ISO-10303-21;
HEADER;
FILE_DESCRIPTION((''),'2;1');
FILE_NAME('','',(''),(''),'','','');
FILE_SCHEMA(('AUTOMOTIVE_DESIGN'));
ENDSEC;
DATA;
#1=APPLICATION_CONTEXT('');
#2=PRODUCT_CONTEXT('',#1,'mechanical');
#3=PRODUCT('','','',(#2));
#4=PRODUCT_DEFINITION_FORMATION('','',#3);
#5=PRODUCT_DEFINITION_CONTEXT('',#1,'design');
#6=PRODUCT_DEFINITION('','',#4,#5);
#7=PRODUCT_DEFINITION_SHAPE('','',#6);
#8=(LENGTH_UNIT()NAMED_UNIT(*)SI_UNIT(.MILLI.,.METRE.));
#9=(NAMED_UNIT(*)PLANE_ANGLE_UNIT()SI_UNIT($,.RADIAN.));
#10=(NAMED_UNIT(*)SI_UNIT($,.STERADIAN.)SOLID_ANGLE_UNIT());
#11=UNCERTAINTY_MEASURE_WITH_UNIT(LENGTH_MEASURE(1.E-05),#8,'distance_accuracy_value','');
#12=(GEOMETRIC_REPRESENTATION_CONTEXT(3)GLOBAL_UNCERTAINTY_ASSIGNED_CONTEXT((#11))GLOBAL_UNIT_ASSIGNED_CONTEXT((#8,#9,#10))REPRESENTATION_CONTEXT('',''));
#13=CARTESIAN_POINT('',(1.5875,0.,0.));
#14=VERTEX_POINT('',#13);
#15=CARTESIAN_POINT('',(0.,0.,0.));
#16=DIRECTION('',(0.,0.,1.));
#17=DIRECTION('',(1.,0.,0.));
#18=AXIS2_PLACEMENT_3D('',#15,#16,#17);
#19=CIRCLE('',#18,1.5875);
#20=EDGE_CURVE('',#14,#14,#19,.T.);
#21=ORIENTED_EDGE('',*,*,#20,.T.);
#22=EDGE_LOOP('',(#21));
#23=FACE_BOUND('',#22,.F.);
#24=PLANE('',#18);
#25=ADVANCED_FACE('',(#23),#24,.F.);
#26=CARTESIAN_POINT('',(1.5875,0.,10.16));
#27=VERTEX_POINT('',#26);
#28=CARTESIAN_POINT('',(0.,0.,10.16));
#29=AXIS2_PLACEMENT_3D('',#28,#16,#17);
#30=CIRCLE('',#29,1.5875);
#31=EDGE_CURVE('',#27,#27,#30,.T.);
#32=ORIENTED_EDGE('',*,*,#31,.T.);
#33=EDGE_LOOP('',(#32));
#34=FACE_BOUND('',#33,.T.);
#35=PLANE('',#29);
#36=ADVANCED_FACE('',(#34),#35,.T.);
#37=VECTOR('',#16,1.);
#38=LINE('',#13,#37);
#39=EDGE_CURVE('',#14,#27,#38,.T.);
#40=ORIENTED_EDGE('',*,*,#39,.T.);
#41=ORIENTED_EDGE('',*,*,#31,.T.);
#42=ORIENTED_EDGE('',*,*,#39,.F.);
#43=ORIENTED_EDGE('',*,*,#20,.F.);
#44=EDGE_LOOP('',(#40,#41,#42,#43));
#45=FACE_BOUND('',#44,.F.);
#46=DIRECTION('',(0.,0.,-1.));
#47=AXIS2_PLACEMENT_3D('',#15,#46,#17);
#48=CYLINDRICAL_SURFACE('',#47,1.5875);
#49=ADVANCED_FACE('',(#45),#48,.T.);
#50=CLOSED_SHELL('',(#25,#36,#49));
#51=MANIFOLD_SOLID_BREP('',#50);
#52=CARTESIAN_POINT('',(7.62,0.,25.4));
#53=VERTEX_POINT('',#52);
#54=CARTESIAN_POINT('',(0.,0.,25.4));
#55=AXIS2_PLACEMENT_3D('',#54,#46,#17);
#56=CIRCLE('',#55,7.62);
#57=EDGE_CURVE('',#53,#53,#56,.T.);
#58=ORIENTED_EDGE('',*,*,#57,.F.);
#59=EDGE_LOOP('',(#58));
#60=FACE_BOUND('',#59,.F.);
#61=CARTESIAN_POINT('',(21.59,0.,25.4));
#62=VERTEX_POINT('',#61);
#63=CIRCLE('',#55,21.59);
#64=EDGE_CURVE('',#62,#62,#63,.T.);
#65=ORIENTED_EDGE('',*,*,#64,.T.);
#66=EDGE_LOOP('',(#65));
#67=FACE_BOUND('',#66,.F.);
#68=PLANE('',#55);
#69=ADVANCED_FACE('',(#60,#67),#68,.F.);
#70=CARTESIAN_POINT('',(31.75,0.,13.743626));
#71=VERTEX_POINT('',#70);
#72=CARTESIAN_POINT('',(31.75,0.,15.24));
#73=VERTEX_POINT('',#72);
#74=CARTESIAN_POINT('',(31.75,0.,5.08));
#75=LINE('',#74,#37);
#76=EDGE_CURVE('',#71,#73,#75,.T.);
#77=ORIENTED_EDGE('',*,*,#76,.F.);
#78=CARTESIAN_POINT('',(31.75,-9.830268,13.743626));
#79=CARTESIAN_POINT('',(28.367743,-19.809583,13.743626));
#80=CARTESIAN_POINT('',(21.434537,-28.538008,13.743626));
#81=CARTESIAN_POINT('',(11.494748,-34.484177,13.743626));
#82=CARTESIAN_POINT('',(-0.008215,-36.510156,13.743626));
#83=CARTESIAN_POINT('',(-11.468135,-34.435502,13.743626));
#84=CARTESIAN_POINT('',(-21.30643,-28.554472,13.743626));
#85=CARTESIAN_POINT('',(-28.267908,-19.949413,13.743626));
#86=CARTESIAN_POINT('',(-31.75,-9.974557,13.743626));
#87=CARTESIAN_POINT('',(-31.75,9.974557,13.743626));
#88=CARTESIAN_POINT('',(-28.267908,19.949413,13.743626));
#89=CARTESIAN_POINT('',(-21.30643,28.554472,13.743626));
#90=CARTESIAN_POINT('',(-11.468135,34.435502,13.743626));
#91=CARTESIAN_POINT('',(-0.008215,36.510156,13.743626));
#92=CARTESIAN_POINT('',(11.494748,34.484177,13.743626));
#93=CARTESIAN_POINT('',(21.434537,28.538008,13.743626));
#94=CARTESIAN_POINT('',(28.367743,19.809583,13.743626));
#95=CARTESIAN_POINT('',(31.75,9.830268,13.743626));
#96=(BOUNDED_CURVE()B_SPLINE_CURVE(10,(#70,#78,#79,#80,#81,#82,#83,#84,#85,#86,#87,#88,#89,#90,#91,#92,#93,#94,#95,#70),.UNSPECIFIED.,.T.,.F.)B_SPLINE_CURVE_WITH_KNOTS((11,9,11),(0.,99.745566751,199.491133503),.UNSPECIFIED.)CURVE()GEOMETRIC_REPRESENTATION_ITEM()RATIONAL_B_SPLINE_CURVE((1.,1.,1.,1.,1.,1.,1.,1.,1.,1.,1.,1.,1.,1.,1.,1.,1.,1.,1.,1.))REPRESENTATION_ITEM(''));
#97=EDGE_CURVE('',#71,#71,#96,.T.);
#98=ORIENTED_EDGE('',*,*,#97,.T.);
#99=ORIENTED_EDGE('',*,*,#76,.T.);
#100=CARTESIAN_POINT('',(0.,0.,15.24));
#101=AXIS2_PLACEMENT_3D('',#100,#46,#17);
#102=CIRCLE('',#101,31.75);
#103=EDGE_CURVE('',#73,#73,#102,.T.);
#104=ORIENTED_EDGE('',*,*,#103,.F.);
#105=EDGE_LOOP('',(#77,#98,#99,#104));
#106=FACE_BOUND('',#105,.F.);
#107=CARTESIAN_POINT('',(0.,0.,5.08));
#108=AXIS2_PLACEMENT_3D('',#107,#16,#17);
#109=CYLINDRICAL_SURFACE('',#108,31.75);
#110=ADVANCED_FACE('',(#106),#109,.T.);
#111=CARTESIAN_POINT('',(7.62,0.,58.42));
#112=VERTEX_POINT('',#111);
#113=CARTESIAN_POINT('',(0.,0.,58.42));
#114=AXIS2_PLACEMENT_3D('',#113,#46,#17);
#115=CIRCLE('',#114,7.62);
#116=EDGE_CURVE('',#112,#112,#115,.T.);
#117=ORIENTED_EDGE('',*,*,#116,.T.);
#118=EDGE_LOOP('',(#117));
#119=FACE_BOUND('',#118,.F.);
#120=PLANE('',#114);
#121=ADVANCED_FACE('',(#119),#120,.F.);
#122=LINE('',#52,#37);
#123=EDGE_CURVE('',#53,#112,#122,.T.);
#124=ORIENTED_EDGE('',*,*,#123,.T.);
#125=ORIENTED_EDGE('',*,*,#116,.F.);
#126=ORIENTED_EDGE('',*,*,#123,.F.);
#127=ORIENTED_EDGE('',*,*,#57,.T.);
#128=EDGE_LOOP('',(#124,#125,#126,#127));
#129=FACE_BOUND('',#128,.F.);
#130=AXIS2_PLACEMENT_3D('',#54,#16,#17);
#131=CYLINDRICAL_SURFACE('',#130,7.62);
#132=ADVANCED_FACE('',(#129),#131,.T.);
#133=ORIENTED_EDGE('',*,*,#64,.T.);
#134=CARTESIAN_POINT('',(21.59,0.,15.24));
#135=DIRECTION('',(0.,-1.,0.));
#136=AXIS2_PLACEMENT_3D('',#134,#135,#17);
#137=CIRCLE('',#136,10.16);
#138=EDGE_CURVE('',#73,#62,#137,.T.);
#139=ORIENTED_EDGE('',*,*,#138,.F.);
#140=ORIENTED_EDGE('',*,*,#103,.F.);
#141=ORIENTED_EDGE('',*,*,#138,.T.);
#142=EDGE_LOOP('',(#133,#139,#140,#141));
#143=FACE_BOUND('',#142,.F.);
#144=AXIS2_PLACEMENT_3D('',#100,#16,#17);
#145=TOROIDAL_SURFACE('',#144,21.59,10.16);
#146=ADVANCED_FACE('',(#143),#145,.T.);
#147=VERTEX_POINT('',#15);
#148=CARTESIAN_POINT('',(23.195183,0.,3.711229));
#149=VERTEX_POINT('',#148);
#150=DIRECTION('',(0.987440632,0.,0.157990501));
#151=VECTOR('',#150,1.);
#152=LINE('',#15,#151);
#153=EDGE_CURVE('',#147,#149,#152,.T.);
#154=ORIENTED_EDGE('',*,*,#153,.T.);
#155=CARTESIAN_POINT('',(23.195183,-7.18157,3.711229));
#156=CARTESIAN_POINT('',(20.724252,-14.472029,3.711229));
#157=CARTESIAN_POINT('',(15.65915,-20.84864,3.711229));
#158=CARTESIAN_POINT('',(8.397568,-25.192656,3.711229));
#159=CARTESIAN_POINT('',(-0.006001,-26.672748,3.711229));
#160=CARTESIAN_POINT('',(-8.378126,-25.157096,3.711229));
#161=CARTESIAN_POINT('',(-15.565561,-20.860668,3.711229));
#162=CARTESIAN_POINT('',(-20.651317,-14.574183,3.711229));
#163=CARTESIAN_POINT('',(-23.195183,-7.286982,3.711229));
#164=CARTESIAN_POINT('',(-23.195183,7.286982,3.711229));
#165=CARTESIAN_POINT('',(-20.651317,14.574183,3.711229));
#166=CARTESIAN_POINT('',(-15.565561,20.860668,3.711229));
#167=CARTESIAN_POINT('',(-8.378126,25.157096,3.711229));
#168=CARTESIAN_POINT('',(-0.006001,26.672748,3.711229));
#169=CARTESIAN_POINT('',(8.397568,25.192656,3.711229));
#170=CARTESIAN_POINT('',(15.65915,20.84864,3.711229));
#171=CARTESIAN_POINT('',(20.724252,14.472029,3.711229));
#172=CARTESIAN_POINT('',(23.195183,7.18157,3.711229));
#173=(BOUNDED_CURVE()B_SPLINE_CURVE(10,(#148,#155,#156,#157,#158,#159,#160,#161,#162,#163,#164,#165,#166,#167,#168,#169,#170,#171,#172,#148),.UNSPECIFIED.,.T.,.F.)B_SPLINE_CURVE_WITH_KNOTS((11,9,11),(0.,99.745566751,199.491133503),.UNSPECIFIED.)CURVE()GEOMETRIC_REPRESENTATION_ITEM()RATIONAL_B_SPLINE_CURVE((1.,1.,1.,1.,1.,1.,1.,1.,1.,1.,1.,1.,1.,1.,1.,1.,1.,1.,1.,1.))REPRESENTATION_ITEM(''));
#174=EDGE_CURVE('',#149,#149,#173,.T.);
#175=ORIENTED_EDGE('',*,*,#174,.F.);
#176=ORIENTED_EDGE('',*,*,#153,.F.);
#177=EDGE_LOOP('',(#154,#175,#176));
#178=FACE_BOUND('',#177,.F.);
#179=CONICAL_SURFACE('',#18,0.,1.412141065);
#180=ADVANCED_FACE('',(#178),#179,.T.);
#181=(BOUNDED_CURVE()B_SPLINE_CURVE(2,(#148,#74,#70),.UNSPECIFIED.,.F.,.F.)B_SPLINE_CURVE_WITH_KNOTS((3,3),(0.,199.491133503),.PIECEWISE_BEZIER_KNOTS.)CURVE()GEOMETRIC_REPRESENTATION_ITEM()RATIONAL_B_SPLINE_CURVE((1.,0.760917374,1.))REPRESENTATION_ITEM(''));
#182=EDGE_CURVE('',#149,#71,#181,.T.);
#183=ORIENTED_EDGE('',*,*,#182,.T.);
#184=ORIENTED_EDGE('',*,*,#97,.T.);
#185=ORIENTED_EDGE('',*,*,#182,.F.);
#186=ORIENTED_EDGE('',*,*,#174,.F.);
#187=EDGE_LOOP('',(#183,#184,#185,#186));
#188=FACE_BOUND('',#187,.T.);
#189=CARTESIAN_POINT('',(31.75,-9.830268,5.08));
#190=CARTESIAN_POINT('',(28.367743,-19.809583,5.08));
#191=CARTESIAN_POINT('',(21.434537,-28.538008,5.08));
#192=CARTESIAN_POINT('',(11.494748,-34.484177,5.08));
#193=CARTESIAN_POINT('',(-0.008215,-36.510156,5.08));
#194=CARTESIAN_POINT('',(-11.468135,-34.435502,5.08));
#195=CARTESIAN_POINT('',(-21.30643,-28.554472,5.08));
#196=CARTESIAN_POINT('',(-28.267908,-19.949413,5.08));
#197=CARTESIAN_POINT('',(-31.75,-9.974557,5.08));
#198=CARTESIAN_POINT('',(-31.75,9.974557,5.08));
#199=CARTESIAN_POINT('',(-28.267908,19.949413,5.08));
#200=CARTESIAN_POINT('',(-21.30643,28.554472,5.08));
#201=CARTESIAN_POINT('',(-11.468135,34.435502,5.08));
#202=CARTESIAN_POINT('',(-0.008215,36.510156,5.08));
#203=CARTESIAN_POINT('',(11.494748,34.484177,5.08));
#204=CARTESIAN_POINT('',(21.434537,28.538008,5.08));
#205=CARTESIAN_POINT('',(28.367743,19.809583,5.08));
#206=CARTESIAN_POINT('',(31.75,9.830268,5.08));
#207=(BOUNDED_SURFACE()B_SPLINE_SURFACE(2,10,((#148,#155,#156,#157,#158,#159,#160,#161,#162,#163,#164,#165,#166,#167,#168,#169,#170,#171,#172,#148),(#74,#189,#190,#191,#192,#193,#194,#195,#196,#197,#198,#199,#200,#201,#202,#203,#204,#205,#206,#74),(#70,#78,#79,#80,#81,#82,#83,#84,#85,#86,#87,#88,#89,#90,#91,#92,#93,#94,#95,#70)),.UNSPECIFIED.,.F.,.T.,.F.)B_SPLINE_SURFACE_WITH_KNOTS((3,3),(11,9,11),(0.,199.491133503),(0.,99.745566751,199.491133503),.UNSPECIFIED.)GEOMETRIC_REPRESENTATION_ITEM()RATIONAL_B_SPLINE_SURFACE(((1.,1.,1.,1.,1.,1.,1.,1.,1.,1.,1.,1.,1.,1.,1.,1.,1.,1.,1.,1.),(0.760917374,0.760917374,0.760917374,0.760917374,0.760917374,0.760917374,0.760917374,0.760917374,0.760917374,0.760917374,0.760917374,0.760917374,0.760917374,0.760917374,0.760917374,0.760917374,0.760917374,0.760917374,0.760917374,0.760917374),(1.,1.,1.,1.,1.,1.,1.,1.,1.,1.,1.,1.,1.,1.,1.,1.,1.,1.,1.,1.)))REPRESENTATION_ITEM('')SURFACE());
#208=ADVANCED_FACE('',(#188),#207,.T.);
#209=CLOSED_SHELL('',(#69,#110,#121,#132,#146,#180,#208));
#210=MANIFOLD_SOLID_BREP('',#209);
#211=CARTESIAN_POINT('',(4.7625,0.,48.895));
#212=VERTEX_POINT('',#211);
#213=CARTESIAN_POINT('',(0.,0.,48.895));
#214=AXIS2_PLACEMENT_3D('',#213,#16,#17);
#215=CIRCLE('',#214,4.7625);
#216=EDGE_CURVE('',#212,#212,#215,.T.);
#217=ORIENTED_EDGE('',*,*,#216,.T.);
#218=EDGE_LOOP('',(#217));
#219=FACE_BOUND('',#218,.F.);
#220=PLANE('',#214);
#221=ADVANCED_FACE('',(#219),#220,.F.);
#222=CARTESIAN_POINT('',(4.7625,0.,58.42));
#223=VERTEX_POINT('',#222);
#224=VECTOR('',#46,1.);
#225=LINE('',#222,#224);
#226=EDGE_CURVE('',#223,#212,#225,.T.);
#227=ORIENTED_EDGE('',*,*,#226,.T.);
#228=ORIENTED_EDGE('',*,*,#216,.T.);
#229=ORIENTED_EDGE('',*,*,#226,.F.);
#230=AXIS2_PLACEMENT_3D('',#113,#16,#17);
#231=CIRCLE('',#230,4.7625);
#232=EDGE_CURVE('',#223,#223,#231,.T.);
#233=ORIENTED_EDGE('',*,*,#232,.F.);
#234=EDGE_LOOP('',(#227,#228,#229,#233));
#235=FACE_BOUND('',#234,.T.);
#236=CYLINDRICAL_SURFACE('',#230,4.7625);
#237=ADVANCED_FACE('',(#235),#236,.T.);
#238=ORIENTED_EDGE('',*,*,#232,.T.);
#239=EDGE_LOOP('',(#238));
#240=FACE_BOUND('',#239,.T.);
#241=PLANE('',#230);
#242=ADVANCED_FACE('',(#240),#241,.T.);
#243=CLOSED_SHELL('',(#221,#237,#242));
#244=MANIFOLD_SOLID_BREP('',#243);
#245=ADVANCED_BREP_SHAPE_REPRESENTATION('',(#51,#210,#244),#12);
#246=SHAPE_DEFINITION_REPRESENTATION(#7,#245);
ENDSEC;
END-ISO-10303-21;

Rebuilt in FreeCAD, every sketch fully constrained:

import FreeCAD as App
import Part
import Sketcher
from FreeCAD import Vector
Q = App.Units.Quantity


def edges_at(feature, points):
    """Names of the edges that pass closest to the given points."""
    edges = feature.Shape.Edges
    near = lambda p: min(range(len(edges)), key=lambda i: edges[i].distToShape(Part.Vertex(*p))[0])
    return sorted({f"Edge{near(p) + 1}" for p in points})

doc = App.newDocument("Part")
body = doc.addObject("PartDesign::Body", "Body")

# Sketch on XZ plane
sketch1 = body.newObject("Sketcher::SketchObject", "Sketch")
sketch1.AttachmentSupport = (doc.getObject("XZ_Plane"), [""])
sketch1.MapMode = "FlatFace"
sketch1.addGeometry([
    Part.LineSegment(Vector(0, 58, 0), Vector(0, 0, 0)),  # 0
    Part.LineSegment(Vector(0, 0, 0), Vector(32, 5, 0)),  # 1
    Part.LineSegment(Vector(32, 5, 0), Vector(32, 25, 0)),  # 2
    Part.LineSegment(Vector(32, 25, 0), Vector(8, 25, 0)),  # 3
    Part.LineSegment(Vector(8, 25, 0), Vector(8, 58, 0)),  # 4
    Part.LineSegment(Vector(8, 58, 0), Vector(0, 58, 0)),  # 5
], False)
sketch1.addConstraint([
    Sketcher.Constraint("Coincident", 0, 2, 1, 1),
    Sketcher.Constraint("Coincident", 1, 2, 2, 1),
    Sketcher.Constraint("Coincident", 2, 2, 3, 1),
    Sketcher.Constraint("Coincident", 3, 2, 4, 1),
    Sketcher.Constraint("Coincident", 4, 2, 5, 1),
    Sketcher.Constraint("Coincident", 5, 2, 0, 1),
    Sketcher.Constraint("Vertical", 0),
    Sketcher.Constraint("Vertical", 2),
    Sketcher.Constraint("Horizontal", 3),
    Sketcher.Constraint("Vertical", 4),
    Sketcher.Constraint("Horizontal", 5),
    Sketcher.Constraint("Coincident", 0, 2, -1, 1),
    Sketcher.Constraint("DistanceX", 5, 2, 5, 1, Q("0.3 in")),
    Sketcher.Constraint("DistanceY", 0, 2, 0, 1, Q("2.3 in")),
    Sketcher.Constraint("DistanceY", 2, 1, 2, 2, Q("0.8 in")),
    Sketcher.Constraint("DistanceY", 4, 1, 4, 2, Q("1.3 in")),
    Sketcher.Constraint("DistanceX", 3, 2, 3, 1, Q("0.95 in")),
])
revolution = body.newObject("PartDesign::Revolution", "Revolution")
revolution.Profile = sketch1
revolution.ReferenceAxis = (sketch1, ["V_Axis"])
revolution.Angle = 360
doc.recompute()

fillet = body.newObject("PartDesign::Fillet", "Fillet")
fillet.Base = (revolution, edges_at(revolution, [(-31.75, 0, 5.08), (-31.75, 0, 25.4), (31.75, 0, 15.24)]))
fillet.Radius = Q("0.4 in")
body2 = doc.addObject("PartDesign::Body", "Body001")

# Sketch on XY plane
sketch2 = body2.newObject("Sketcher::SketchObject", "Sketch001")
sketch2.AttachmentSupport = (doc.getObject("XY_Plane001"), [""])
sketch2.MapMode = "FlatFace"
sketch2.addGeometry(Part.Circle(Vector(0, 0, 0), Vector(0, 0, 1), 1.6), False)
sketch2.addConstraint([
    Sketcher.Constraint("Coincident", 0, 3, -1, 1),
    Sketcher.Constraint("Diameter", 0, Q("0.125 in")),
])
pad1 = body2.newObject("PartDesign::Pad", "Pad")
pad1.Profile = sketch2
pad1.Length = Q("0.4 in")
body3 = doc.addObject("PartDesign::Body", "Body002")

# Sketch on XY plane
sketch3 = body3.newObject("Sketcher::SketchObject", "Sketch002")
sketch3.AttachmentSupport = (doc.getObject("XY_Plane002"), [""])
sketch3.MapMode = "FlatFace"
sketch3.AttachmentOffset = App.Placement(Vector(0, 0, 2.3 * 25.4), App.Rotation())
sketch3.addGeometry(Part.Circle(Vector(0, 0, 0), Vector(0, 0, 1), 4.8), False)
sketch3.addConstraint([
    Sketcher.Constraint("Coincident", 0, 3, -1, 1),
    Sketcher.Constraint("Diameter", 0, Q("0.375 in")),
])
pad2 = body3.newObject("PartDesign::Pad", "Pad001")
pad2.Profile = sketch3
pad2.Length = Q("0.375 in")
pad2.Reversed = True

doc.recompute()
